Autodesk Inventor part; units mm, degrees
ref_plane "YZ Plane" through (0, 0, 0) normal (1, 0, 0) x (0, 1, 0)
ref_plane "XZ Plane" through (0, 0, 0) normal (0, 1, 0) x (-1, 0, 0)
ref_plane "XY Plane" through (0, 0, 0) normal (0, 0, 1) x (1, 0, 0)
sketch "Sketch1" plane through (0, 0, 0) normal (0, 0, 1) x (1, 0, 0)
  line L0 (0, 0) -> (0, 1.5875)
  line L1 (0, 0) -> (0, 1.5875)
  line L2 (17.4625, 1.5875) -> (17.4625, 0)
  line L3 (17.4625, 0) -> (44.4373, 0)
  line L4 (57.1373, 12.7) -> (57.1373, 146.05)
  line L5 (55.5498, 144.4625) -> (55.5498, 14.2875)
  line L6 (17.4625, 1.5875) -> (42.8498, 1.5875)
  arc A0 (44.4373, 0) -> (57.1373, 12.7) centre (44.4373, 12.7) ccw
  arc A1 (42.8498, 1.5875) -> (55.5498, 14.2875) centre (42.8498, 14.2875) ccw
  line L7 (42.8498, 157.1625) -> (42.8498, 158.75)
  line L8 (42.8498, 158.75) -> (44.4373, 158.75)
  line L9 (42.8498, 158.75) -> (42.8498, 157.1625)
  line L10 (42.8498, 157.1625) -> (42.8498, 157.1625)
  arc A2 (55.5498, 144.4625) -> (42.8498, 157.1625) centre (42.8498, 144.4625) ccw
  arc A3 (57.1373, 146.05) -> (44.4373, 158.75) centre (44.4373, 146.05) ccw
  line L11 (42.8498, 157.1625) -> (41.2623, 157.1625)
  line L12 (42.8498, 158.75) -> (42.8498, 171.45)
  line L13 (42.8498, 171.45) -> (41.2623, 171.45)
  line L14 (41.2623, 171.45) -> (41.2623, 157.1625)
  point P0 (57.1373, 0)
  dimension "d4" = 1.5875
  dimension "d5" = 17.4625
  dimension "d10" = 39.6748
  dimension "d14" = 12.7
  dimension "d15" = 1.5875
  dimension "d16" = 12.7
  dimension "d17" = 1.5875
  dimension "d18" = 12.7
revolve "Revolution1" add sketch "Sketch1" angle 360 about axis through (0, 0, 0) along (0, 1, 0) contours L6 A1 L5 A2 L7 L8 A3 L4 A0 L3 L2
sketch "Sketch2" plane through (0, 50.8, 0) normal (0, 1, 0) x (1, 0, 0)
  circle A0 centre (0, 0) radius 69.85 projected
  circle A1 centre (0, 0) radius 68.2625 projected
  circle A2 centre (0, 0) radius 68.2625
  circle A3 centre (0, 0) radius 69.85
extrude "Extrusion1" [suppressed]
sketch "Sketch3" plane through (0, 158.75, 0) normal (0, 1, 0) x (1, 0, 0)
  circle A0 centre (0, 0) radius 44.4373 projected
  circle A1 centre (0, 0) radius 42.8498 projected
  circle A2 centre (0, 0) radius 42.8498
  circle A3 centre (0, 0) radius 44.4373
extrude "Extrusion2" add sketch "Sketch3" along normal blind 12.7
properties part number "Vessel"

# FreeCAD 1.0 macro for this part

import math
import FreeCAD as App
import Part
import Sketcher

V = App.Vector
Q = App.Units.Quantity

doc = App.newDocument("Part")
body = doc.addObject("PartDesign::Body", "Body")

sketch1 = body.newObject("Sketcher::SketchObject", "Sketch")
sketch1.AttachmentSupport = (doc.getObject("XY_Plane"), [""])
sketch1.MapMode = "FlatFace"
sketch1.addGeometry([
    Part.LineSegment(V(42.8, 1.6, 0), V(17.5, 1.6, 0)),
    Part.LineSegment(V(17.5, 1.6, 0), V(17.5, 0, 0)),
    Part.LineSegment(V(17.5, 0, 0), V(44.4, 0, 0)),
    Part.ArcOfCircle(Part.Circle(V(44.4, 12.7, 0), V(0, 0, 1), 12.7), math.radians(-90), math.radians(0)),
    Part.LineSegment(V(57.1, 12.7, 0), V(57.1, 146.1, 0)),
    Part.ArcOfCircle(Part.Circle(V(44.4, 146.1, 0), V(0, 0, 1), 12.7), math.radians(0), math.radians(90)),
    Part.LineSegment(V(44.4, 158.8, 0), V(42.8, 158.8, 0)),
    Part.LineSegment(V(42.8, 158.8, 0), V(42.8, 157.2, 0)),
    Part.ArcOfCircle(Part.Circle(V(42.8, 144.5, 0), V(0, 0, 1), 12.7), math.radians(0), math.radians(90)),
    Part.LineSegment(V(55.5, 144.5, 0), V(55.5, 14.3, 0)),
    Part.ArcOfCircle(Part.Circle(V(42.8, 14.3, 0), V(0, 0, 1), 12.7), math.radians(-90), math.radians(0)),
], False)
sketch1.addConstraint([
    Sketcher.Constraint("Coincident", 0, 2, 1, 1),
    Sketcher.Constraint("Coincident", 1, 2, 2, 1),
    Sketcher.Constraint("Tangent", 2, 2, 3, 1),
    Sketcher.Constraint("Tangent", 3, 2, 4, 1),
    Sketcher.Constraint("Tangent", 4, 2, 5, 1),
    Sketcher.Constraint("Tangent", 5, 2, 6, 1),
    Sketcher.Constraint("Coincident", 6, 2, 7, 1),
    Sketcher.Constraint("Coincident", 7, 2, 8, 2),
    Sketcher.Constraint("Tangent", 8, 1, 9, 1),
    Sketcher.Constraint("Tangent", 9, 2, 10, 2),
    Sketcher.Constraint("Tangent", 10, 1, 0, 1),
    Sketcher.Constraint("Horizontal", 0),
    Sketcher.Constraint("Vertical", 1),
    Sketcher.Constraint("Horizontal", 2),
    Sketcher.Constraint("Vertical", 4),
    Sketcher.Constraint("Horizontal", 6),
    Sketcher.Constraint("Vertical", 7),
    Sketcher.Constraint("Vertical", 9),
    Sketcher.Constraint("Equal", 3, 5),
    Sketcher.Constraint("Equal", 5, 8),
    Sketcher.Constraint("Equal", 8, 10),
    Sketcher.Constraint("PointOnObject", 1, 2, -1),
    Sketcher.Constraint("Vertical", 10, 3, 6, 2),
    Sketcher.Constraint("Equal", 6, 1),
    Sketcher.Constraint("Equal", 1, 7),
    Sketcher.Constraint("Radius", 3, Q("0.5 in")),
    Sketcher.Constraint("DistanceX", 6, 2, 6, 1, Q("0.0625 in")),
    Sketcher.Constraint("DistanceX", -1, 1, 0, 2, Q("0.6875 in")),
    Sketcher.Constraint("DistanceX", 0, 2, 3, 2, Q("1.562 in")),
    Sketcher.Constraint("DistanceY", 4, 1, 4, 2, Q("5.25 in")),
])
revolution = body.newObject("PartDesign::Revolution", "Revolution")
revolution.Profile = sketch1
revolution.ReferenceAxis = (sketch1, ["V_Axis"])
revolution.Angle = 360

sketch2 = body.newObject("Sketcher::SketchObject", "Sketch001")
sketch2.AttachmentSupport = (doc.getObject("XZ_Plane"), [""])
sketch2.MapMode = "FlatFace"
sketch2.AttachmentOffset = App.Placement(V(0, 0, -6.25 * 25.4), App.Rotation())
sketch2.addGeometry([
    Part.Circle(V(0, 0, 0), V(0, 0, 1), 44),
    Part.Circle(V(0, 0, 0), V(0, 0, 1), 43),
], False)
sketch2.addConstraint([
    Sketcher.Constraint("Coincident", 0, 3, -1, 1),
    Sketcher.Constraint("Coincident", 1, 3, -1, 1),
    Sketcher.Constraint("Diameter", 0, Q("3.499 in")),
    Sketcher.Constraint("Diameter", 1, Q("3.374 in")),
])
pad1 = body.newObject("PartDesign::Pad", "Pad")
pad1.Profile = sketch2
pad1.Length = Q("0.5 in")
pad1.Reversed = True

doc.recompute()
